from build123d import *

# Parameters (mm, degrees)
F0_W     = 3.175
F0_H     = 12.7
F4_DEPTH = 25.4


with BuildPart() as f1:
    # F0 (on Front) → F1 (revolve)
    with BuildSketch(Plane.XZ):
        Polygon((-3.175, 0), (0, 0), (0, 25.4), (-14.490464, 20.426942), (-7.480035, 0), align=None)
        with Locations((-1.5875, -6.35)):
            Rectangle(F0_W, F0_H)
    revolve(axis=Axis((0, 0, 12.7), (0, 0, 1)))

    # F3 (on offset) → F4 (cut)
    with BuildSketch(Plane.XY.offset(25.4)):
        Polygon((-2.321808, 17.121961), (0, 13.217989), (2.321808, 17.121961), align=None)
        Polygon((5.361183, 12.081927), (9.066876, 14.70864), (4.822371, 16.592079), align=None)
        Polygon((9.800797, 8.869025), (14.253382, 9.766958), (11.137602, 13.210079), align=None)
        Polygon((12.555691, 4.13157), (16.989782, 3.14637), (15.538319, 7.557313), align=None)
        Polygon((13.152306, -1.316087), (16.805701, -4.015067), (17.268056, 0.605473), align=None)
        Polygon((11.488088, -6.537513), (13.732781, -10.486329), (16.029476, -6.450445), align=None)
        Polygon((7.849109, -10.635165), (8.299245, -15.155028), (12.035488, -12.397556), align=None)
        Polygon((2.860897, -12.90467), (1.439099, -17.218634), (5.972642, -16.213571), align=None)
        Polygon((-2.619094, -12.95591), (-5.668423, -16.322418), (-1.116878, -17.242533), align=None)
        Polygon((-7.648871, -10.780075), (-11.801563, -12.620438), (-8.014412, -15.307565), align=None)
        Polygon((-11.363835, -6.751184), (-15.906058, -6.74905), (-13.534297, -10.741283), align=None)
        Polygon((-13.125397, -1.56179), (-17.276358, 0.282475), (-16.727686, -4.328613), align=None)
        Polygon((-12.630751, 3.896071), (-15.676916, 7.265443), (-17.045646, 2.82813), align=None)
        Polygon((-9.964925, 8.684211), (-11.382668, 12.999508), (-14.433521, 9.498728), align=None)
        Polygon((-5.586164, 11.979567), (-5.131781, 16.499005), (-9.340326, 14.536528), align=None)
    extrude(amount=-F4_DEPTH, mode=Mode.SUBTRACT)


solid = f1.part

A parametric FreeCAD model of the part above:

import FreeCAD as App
import Part
import Sketcher
from FreeCAD import Vector
Q = App.Units.Quantity


def add_polygon(sketch, points):
    """Adds a closed chain of lines whose ends are joined by coincident constraints."""
    first, n = sketch.GeometryCount, len(points)
    for a, b in zip(points, points[1:] + points[:1]):
        sketch.addGeometry(Part.LineSegment(App.Vector(*a, 0), App.Vector(*b, 0)), False)
    for i in range(n):
        sketch.addConstraint(Sketcher.Constraint("Coincident", first + i, 2, first + (i + 1) % n, 1))

doc = App.newDocument("Part")
params = doc.addObject("Spreadsheet::Sheet", "Params")
for row, (alias, value) in enumerate([
    ("sketch1_height", "0.5 in"),
    ("sketch1_height2", "1.5 in"),
    ("sketch1_width", "0.125 in"),
    ("revolution_angle", "360 deg"),
    ("pocket1_length", "1 in"),
], start=1):
    params.set(f"A{row}", alias)
    params.set(f"B{row}", "=" + value)
    params.setAlias(f"B{row}", alias)

body = doc.addObject("PartDesign::Body", "Body")

# Sketch on XZ plane
sketch1 = body.newObject("Sketcher::SketchObject", "Sketch")
sketch1.AttachmentSupport = (doc.getObject("XZ_Plane"), [""])
sketch1.MapMode = "FlatFace"
add_polygon(sketch1, [(0, 25.4), (-14.5, 20.4), (-7.5, 0), (-3.2, 0), (-3.2, -12.7), (0, -12.7)])  # lines 0-5
sketch1.addConstraint([
    Sketcher.Constraint("Horizontal", 2),
    Sketcher.Constraint("Vertical", 3),
    Sketcher.Constraint("Horizontal", 4),
    Sketcher.Constraint("Vertical", 5),
    Sketcher.Constraint("PointOnObject", 1, 2, -1),
    Sketcher.Constraint("PointOnObject", 4, 2, -2),
    Sketcher.Constraint("Perpendicular", 0, 1),
    Sketcher.Constraint("DistanceY", 3, 2, 3, 1, Q("0.5 in")),
    Sketcher.Constraint("DistanceY", 5, 1, 5, 2, Q("1.5 in")),
    Sketcher.Constraint("DistanceX", 4, 1, 4, 2, Q("0.125 in")),
    Sketcher.Constraint("Distance", 0, 15.32008),
    Sketcher.Constraint("DistanceX", 2, 1, 2, 2, 4.305035),
])
sketch1.setExpression("Constraints[13]", "Params.sketch1_height")
sketch1.setExpression("Constraints[14]", "Params.sketch1_height2")
sketch1.setExpression("Constraints[15]", "Params.sketch1_width")
revolution = body.newObject("PartDesign::Revolution", "Revolution")
revolution.Profile = sketch1
revolution.ReferenceAxis = (sketch1, ["V_Axis"])
revolution.setExpression("Angle", "Params.revolution_angle")

# Sketch on XY plane
sketch2 = body.newObject("Sketcher::SketchObject", "Sketch001")
sketch2.AttachmentSupport = (doc.getObject("XY_Plane"), [""])
sketch2.MapMode = "FlatFace"
sketch2.AttachmentOffset = App.Placement(Vector(0, 0, 1 * 25.4), App.Rotation())
add_polygon(sketch2, [(-2.3, 17.1), (0, 13.2), (2.3, 17.1)])  # lines 0-2
add_polygon(sketch2, [(5.4, 12.1), (9.1, 14.7), (4.8, 16.6)])  # lines 3-5
add_polygon(sketch2, [(9.8, 8.9), (14.3, 9.8), (11.1, 13.2)])  # lines 6-8
add_polygon(sketch2, [(12.6, 4.1), (17, 3.1), (15.5, 7.6)])  # lines 9-11
add_polygon(sketch2, [(13.2, -1.3), (16.8, -4), (17.3, 0.6)])  # lines 12-14
add_polygon(sketch2, [(11.5, -6.5), (13.7, -10.5), (16, -6.5)])  # lines 15-17
add_polygon(sketch2, [(7.8, -10.6), (8.3, -15.2), (12, -12.4)])  # lines 18-20
add_polygon(sketch2, [(2.9, -12.9), (1.4, -17.2), (6, -16.2)])  # lines 21-23
add_polygon(sketch2, [(-2.6, -13), (-5.7, -16.3), (-1.1, -17.2)])  # lines 24-26
add_polygon(sketch2, [(-7.6, -10.8), (-11.8, -12.6), (-8, -15.3)])  # lines 27-29
add_polygon(sketch2, [(-11.4, -6.8), (-15.9, -6.7), (-13.5, -10.7)])  # lines 30-32
add_polygon(sketch2, [(-13.1, -1.6), (-17.3, 0.3), (-16.7, -4.3)])  # lines 33-35
add_polygon(sketch2, [(-12.6, 3.9), (-15.7, 7.3), (-17, 2.8)])  # lines 36-38
add_polygon(sketch2, [(-10, 8.7), (-11.4, 13), (-14.4, 9.5)])  # lines 39-41
add_polygon(sketch2, [(-5.6, 12), (-5.1, 16.5), (-9.3, 14.5)])  # lines 42-44
sketch2.addConstraint([
    Sketcher.Constraint("Horizontal", 2),
    Sketcher.Constraint("PointOnObject", 0, 2, -2),
    Sketcher.Constraint("Equal", 0, 1),
    Sketcher.Constraint("Equal", 1, 3),
    Sketcher.Constraint("Equal", 3, 5),
    Sketcher.Constraint("Equal", 5, 6),
    Sketcher.Constraint("Equal", 4, 7),
    Sketcher.Constraint("Equal", 6, 8),
    Sketcher.Constraint("Equal", 8, 9),
    Sketcher.Constraint("Equal", 7, 10),
    Sketcher.Constraint("Equal", 9, 11),
    Sketcher.Constraint("Equal", 11, 12),
    Sketcher.Constraint("Equal", 10, 13),
    Sketcher.Constraint("Equal", 12, 14),
    Sketcher.Constraint("Equal", 14, 15),
    Sketcher.Constraint("Equal", 13, 16),
    Sketcher.Constraint("Equal", 15, 17),
    Sketcher.Constraint("Equal", 17, 18),
    Sketcher.Constraint("Equal", 16, 19),
    Sketcher.Constraint("Equal", 18, 20),
    Sketcher.Constraint("Equal", 20, 21),
    Sketcher.Constraint("Equal", 19, 22),
    Sketcher.Constraint("Equal", 21, 23),
    Sketcher.Constraint("Equal", 23, 24),
    Sketcher.Constraint("Equal", 22, 25),
    Sketcher.Constraint("Equal", 24, 26),
    Sketcher.Constraint("Equal", 26, 27),
    Sketcher.Constraint("Equal", 25, 28),
    Sketcher.Constraint("Equal", 27, 29),
    Sketcher.Constraint("Equal", 29, 30),
    Sketcher.Constraint("Equal", 28, 31),
    Sketcher.Constraint("Equal", 30, 32),
    Sketcher.Constraint("Equal", 32, 33),
    Sketcher.Constraint("Equal", 31, 34),
    Sketcher.Constraint("Equal", 33, 35),
    Sketcher.Constraint("Equal", 35, 36),
    Sketcher.Constraint("Equal", 34, 37),
    Sketcher.Constraint("Equal", 36, 38),
    Sketcher.Constraint("Equal", 38, 39),
    Sketcher.Constraint("Equal", 37, 40),
    Sketcher.Constraint("Equal", 39, 41),
    Sketcher.Constraint("Equal", 41, 42),
    Sketcher.Constraint("Equal", 40, 43),
    Sketcher.Constraint("Equal", 42, 44),
    Sketcher.Constraint("Angle", 43, Q("-154.999997 deg")),
    Sketcher.Constraint("Angle", 22, Q("12.500009 deg")),
    Sketcher.Constraint("DistanceX", 10, 2, 13, 2, Q("0.0680999 in")),
    Sketcher.Constraint("DistanceY", 18, 2, 16, 2, Q("0.3427001 in")),
    Sketcher.Constraint("DistanceX", 18, 2, 12, 2, Q("0.3348998 in")),
    Sketcher.Constraint("DistanceX", 24, 2, 23, 2, Q("0.3358 in")),
    Sketcher.Constraint("DistanceX", -1, 1, 7, 2, 11.137602),
    Sketcher.Constraint("DistanceX", -1, 1, 12, 2, 16.805701),
    Sketcher.Constraint("DistanceX", -1, 1, 21, 2, 1.439099),
    Sketcher.Constraint("DistanceX", 5, 2, 6, 2, 8.892199),
    Sketcher.Constraint("DistanceY", 7, 2, 4, 2, 3.382),
    Sketcher.Constraint("DistanceY", 8, 2, 5, 2, 3.212902),
    Sketcher.Constraint("DistanceX", 6, 2, 9, 2, 2.7364),
    Sketcher.Constraint("DistanceY", 9, 2, 11, 2, 0.9852),
    Sketcher.Constraint("DistanceY", 14, 2, 10, 2, 8.8734),
    Sketcher.Constraint("DistanceX", 15, 2, 9, 2, 3.257001),
    Sketcher.Constraint("DistanceY", 15, 2, 9, 2, 13.632699),
    Sketcher.Constraint("DistanceY", 18, 2, 15, 2, 4.668699),
    Sketcher.Constraint("DistanceX", 17, 2, 19, 2, 0.5474),
    Sketcher.Constraint("DistanceY", 22, 2, 23, 2, 3.308901),
    Sketcher.Constraint("DistanceX", 21, 2, 23, 2, 1.421798),
    Sketcher.Constraint("DistanceY", 25, 2, 21, 2, 0.023899),
    Sketcher.Constraint("DistanceY", 31, 2, 32, 2, 3.990099),
    Sketcher.Constraint("DistanceX", 33, 2, 30, 2, 1.3703),
    Sketcher.Constraint("DistanceX", 31, 2, 35, 2, 0.4089),
    Sketcher.Constraint("DistanceX", 41, 2, 43, 2, 0.624599),
    Sketcher.Constraint("DistanceY", 40, 2, 43, 2, 5.0378),
    Sketcher.Constraint("DistanceX", 2, 2, 2, 1, 4.643616),
    Sketcher.Constraint("DistanceY", -1, 1, 0, 2, 13.217989),
    Sketcher.Constraint("DistanceY", -1, 1, 3, 2, 14.70864),
    Sketcher.Constraint("DistanceX", -1, 1, 4, 2, 4.822371),
    Sketcher.Constraint("DistanceY", -1, 1, 9, 2, 3.14637),
    Sketcher.Constraint("DistanceY", 22, 2, -1, 1, 16.213571),
    Sketcher.Constraint("DistanceY", 26, 2, -1, 1, 12.95591),
    Sketcher.Constraint("DistanceX", 29, 2, -1, 1, 7.648871),
    Sketcher.Constraint("DistanceY", 30, 2, -1, 1, 6.74905),
    Sketcher.Constraint("DistanceY", 35, 2, -1, 1, 1.56179),
    Sketcher.Constraint("DistanceY", -1, 1, 37, 2, 2.82813),
    Sketcher.Constraint("DistanceX", 38, 2, -1, 1, 12.630751),
    Sketcher.Constraint("DistanceY", -1, 1, 38, 2, 3.896071),
    Sketcher.Constraint("DistanceX", 39, 2, -1, 1, 11.382668),
    Sketcher.Constraint("DistanceX", 40, 2, -1, 1, 14.433521),
    Sketcher.Constraint("DistanceY", -1, 1, 41, 2, 8.684211),
    Sketcher.Constraint("DistanceX", 27, 2, 24, 2, 6.13314),
    Sketcher.Constraint("DistanceY", 24, 2, 27, 2, 3.70198),
    Sketcher.Constraint("DistanceX", 33, 2, 36, 2, 1.599442),
])
pocket1 = body.newObject("PartDesign::Pocket", "Pocket")
pocket1.Profile = sketch2
pocket1.setExpression("Length", "Params.pocket1_length")

doc.recompute()
